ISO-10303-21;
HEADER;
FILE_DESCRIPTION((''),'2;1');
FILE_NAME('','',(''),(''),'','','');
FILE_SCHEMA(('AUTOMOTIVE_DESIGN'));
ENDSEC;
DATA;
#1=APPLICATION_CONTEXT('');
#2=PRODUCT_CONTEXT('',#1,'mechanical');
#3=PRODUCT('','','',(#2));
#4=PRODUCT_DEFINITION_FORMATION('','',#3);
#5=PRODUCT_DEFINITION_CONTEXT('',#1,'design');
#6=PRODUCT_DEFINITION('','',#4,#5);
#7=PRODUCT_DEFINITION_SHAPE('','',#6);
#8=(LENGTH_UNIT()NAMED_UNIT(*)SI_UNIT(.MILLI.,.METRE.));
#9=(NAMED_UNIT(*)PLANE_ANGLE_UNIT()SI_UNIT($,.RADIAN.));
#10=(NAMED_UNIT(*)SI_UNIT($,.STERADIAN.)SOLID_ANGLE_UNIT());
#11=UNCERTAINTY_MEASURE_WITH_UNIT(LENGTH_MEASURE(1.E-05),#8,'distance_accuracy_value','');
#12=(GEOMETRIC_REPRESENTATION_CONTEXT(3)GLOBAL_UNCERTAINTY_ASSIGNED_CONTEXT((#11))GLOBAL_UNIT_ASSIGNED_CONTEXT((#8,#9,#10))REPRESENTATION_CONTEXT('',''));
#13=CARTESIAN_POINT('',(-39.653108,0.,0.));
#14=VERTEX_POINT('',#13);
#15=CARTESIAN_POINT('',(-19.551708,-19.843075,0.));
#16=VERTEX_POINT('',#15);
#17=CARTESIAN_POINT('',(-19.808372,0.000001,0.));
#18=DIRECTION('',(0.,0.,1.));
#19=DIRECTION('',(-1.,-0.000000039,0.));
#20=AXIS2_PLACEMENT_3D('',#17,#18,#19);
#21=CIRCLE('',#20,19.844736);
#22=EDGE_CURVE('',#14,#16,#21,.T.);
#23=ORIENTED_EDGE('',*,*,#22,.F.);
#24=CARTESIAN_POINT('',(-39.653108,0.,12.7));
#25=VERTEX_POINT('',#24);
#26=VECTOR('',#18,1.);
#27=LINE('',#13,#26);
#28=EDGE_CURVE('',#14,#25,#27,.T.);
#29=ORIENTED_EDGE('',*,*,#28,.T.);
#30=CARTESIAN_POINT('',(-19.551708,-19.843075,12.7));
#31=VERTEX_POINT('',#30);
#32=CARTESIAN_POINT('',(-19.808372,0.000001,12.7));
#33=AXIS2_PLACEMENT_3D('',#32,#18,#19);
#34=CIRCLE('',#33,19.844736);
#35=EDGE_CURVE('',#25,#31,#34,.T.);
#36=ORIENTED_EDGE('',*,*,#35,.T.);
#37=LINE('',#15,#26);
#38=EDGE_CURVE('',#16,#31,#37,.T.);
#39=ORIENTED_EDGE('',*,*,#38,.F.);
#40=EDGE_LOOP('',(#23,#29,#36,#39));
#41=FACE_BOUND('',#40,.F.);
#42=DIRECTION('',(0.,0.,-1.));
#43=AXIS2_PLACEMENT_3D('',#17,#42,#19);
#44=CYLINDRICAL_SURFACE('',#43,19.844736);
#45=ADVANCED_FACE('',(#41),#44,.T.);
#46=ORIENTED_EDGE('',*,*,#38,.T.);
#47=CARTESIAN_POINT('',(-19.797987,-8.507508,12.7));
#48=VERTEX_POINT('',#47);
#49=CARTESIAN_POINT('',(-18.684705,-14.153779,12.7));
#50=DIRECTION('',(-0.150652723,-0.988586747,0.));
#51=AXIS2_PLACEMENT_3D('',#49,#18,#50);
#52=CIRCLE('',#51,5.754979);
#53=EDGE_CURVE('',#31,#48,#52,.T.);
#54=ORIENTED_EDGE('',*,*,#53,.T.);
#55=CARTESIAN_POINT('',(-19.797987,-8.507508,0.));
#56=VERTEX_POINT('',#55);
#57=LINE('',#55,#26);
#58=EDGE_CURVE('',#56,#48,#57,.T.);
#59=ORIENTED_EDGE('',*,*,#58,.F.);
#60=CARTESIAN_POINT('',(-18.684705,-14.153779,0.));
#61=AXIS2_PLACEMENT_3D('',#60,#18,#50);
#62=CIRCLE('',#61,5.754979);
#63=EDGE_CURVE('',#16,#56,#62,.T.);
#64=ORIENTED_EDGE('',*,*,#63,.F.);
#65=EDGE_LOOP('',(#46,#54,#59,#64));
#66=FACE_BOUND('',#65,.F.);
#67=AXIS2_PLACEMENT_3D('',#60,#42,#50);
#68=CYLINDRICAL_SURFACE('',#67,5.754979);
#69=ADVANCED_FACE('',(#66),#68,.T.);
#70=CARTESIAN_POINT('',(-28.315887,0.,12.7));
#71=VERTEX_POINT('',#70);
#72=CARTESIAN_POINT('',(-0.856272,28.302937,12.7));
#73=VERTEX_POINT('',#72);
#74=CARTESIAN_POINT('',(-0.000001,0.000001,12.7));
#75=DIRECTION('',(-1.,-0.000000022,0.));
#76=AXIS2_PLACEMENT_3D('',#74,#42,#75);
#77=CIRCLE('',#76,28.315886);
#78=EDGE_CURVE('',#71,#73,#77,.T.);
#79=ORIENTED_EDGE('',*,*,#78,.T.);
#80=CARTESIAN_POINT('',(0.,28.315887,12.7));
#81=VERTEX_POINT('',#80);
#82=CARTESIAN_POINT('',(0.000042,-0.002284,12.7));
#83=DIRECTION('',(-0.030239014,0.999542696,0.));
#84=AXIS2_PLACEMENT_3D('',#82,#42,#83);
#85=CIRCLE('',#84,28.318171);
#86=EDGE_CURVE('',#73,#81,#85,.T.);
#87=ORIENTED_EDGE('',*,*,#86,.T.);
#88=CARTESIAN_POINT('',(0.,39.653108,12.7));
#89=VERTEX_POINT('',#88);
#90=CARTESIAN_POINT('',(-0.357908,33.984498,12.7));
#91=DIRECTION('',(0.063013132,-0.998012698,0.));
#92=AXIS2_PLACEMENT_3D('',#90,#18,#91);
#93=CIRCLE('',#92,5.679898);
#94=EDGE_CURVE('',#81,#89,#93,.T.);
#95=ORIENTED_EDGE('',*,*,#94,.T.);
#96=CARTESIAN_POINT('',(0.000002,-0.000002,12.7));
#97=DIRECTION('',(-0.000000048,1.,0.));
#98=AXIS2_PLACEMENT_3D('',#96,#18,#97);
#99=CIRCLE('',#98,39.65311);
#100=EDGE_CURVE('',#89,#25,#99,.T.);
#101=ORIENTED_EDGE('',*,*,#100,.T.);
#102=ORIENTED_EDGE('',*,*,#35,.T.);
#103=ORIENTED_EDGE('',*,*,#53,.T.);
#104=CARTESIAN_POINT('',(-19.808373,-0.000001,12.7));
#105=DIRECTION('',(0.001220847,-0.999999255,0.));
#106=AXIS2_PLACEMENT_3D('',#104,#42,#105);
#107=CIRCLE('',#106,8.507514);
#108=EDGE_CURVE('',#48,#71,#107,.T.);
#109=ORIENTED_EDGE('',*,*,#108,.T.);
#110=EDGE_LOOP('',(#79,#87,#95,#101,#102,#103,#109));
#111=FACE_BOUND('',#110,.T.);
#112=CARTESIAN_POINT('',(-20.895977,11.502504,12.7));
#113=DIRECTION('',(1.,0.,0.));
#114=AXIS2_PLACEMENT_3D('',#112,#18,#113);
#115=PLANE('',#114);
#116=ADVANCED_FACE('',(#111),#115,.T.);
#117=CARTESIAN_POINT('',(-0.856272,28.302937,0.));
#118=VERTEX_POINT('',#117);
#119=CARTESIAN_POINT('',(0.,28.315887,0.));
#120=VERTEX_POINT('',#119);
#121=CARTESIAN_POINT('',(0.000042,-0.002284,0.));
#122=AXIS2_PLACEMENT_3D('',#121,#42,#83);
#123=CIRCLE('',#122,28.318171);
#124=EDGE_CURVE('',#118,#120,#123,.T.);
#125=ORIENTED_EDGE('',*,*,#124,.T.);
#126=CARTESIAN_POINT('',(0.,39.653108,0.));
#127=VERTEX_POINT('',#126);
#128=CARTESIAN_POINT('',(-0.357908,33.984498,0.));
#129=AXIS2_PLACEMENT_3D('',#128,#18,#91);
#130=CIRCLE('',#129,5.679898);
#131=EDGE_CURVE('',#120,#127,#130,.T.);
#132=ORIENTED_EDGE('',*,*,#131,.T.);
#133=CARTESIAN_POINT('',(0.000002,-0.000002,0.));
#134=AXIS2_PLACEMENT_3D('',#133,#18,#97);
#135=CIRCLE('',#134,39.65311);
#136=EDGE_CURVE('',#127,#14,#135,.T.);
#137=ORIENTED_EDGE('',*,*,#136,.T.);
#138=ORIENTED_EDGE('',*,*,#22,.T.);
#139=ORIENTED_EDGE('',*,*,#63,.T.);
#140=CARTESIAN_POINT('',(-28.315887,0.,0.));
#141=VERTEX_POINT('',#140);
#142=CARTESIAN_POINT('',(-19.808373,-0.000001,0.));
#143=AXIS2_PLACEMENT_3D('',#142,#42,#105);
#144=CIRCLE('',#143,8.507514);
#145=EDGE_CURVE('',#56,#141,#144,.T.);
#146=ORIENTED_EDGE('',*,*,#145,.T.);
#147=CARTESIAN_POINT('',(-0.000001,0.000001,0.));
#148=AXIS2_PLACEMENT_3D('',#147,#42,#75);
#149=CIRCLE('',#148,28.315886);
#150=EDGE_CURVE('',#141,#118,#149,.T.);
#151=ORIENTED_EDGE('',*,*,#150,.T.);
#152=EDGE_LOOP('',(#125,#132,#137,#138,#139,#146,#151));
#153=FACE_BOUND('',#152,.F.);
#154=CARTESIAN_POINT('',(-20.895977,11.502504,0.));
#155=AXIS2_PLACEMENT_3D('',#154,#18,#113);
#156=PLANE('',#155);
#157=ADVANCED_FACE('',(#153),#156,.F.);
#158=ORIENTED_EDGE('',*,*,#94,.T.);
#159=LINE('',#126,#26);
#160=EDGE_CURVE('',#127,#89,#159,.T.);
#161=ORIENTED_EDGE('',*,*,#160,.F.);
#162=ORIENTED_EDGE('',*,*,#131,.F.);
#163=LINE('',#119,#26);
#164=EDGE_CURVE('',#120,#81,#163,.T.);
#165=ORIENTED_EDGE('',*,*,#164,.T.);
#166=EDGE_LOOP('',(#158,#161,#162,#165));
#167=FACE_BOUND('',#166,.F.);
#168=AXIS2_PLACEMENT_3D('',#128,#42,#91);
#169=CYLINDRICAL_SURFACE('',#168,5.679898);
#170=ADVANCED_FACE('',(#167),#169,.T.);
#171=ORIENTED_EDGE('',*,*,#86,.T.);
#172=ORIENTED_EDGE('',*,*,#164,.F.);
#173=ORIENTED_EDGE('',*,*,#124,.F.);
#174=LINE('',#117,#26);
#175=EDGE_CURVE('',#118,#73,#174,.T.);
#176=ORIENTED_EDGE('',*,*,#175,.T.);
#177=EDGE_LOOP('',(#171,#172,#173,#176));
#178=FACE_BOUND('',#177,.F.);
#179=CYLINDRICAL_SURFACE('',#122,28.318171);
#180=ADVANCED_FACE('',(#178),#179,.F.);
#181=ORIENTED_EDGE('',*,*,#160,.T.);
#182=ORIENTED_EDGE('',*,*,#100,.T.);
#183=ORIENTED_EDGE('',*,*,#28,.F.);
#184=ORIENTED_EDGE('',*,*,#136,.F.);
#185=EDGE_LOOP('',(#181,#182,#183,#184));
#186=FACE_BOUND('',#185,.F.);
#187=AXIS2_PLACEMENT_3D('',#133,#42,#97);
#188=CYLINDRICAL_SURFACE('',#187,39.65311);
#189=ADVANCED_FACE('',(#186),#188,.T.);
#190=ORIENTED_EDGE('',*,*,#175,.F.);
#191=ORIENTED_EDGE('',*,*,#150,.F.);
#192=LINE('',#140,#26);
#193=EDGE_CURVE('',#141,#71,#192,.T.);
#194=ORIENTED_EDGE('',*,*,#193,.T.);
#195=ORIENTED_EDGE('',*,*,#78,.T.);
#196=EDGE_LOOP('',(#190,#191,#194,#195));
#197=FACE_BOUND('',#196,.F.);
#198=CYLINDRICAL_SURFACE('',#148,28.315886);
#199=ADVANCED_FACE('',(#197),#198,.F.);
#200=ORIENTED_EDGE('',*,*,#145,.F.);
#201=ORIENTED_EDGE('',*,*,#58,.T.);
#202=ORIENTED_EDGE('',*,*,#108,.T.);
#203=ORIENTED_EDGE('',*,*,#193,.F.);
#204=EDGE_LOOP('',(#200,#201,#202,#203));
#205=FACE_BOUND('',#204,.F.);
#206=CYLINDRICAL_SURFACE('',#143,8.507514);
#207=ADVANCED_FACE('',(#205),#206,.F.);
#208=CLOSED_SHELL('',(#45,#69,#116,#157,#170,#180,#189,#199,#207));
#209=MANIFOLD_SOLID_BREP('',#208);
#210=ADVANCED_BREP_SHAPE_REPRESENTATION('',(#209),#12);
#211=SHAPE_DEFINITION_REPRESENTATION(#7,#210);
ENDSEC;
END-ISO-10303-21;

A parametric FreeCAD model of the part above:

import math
import FreeCAD as App
import Part
import Sketcher

doc = App.newDocument("Part")
params = doc.addObject("Spreadsheet::Sheet", "Params")
for row, (alias, value) in enumerate([
    ("pad1_length", "0.5 in"),
], start=1):
    params.set(f"A{row}", alias)
    params.set(f"B{row}", "=" + value)
    params.setAlias(f"B{row}", alias)

body = doc.addObject("PartDesign::Body", "Body")

# Sketch on XY plane
sketch1 = doc.addObject("Sketcher::SketchObject", "Sketch")
body.addObject(sketch1)
sketch1.AttachmentSupport = (doc.XY_Plane, [""])
sketch1.MapMode = "FlatFace"
sketch1.addGeometry([
    Part.ArcOfCircle(Part.Circle(App.Vector(0.000042, -0.002284, 0), App.Vector(0, 0, 1), 28.318171), math.radians(90.000084), math.radians(91.732832)),  # 0
    Part.ArcOfCircle(Part.Circle(App.Vector(-0.357908, 33.984498, 0), App.Vector(0, 0, 1), 5.679898), math.radians(-86.38722), math.radians(86.38722)),  # 1
    Part.ArcOfCircle(Part.Circle(App.Vector(0.000002, -0.000002, 0), App.Vector(0, 0, 1), 39.65311), math.radians(90.000003), math.radians(179.999997)),  # 2
    Part.ArcOfCircle(Part.Circle(App.Vector(-19.808372, 0.000001, 0), App.Vector(0, 0, 1), 19.844736), math.radians(-179.999998), math.radians(-89.258937)),  # 3
    Part.ArcOfCircle(Part.Circle(App.Vector(-18.684705, -14.153779, 0), App.Vector(0, 0, 1), 5.754979), math.radians(-98.664755), math.radians(101.154004)),  # 4
    Part.ArcOfCircle(Part.Circle(App.Vector(-19.808373, -0.000001, 0), App.Vector(0, 0, 1), 8.507514), math.radians(179.999995), math.radians(270.069949)),  # 5
    Part.ArcOfCircle(Part.Circle(App.Vector(-0.000001, 0.000001, 0), App.Vector(0, 0, 1), 28.315886), math.radians(91.732886), math.radians(180.000001)),  # 6
], False)
sketch1.addConstraint([
    Sketcher.Constraint("Coincident", 0, 1, 1, 1),
    Sketcher.Constraint("Coincident", 1, 2, 2, 1),
    Sketcher.Constraint("Coincident", 2, 2, 3, 1),
    Sketcher.Constraint("Coincident", 3, 2, 4, 1),
    Sketcher.Constraint("Coincident", 4, 2, 5, 2),
    Sketcher.Constraint("Coincident", 5, 1, 6, 2),
    Sketcher.Constraint("Coincident", 6, 1, 0, 2),
    Sketcher.Constraint("Coincident", 2, 3, -1, 1),
    Sketcher.Constraint("Coincident", 6, 3, -1, 1),
    Sketcher.Constraint("Coincident", 5, 3, 3, 3),
    Sketcher.Constraint("PointOnObject", 3, 3, -1),
    Sketcher.Constraint("PointOnObject", 0, 1, -2),
    Sketcher.Constraint("PointOnObject", 1, 2, -2),
    Sketcher.Constraint("PointOnObject", 2, 2, -1),
    Sketcher.Constraint("PointOnObject", 5, 1, -1),
    Sketcher.Constraint("Radius", 1, 5.679898),
    Sketcher.Constraint("Radius", 0, 28.318171),
    Sketcher.Constraint("Radius", 2, 39.65311),
    Sketcher.Constraint("Radius", 4, 5.754979),
    Sketcher.Constraint("Radius", 3, 19.844736),
    Sketcher.Constraint("Radius", 5, 8.507514),
    Sketcher.Constraint("DistanceY", 2, 3, 1, 3, 33.984499),
    Sketcher.Constraint("DistanceX", 5, 1, 4, 2, 8.5179),
    Sketcher.Constraint("DistanceY", 4, 3, -1, 1, 14.153779),
    Sketcher.Constraint("DistanceX", 6, 1, -1, 1, 0.856272),
])
pad1 = doc.addObject("PartDesign::Pad", "Pad")
body.addObject(pad1)
pad1.Profile = sketch1
pad1.setExpression("Length", "Params.pad1_length")

doc.recompute()
